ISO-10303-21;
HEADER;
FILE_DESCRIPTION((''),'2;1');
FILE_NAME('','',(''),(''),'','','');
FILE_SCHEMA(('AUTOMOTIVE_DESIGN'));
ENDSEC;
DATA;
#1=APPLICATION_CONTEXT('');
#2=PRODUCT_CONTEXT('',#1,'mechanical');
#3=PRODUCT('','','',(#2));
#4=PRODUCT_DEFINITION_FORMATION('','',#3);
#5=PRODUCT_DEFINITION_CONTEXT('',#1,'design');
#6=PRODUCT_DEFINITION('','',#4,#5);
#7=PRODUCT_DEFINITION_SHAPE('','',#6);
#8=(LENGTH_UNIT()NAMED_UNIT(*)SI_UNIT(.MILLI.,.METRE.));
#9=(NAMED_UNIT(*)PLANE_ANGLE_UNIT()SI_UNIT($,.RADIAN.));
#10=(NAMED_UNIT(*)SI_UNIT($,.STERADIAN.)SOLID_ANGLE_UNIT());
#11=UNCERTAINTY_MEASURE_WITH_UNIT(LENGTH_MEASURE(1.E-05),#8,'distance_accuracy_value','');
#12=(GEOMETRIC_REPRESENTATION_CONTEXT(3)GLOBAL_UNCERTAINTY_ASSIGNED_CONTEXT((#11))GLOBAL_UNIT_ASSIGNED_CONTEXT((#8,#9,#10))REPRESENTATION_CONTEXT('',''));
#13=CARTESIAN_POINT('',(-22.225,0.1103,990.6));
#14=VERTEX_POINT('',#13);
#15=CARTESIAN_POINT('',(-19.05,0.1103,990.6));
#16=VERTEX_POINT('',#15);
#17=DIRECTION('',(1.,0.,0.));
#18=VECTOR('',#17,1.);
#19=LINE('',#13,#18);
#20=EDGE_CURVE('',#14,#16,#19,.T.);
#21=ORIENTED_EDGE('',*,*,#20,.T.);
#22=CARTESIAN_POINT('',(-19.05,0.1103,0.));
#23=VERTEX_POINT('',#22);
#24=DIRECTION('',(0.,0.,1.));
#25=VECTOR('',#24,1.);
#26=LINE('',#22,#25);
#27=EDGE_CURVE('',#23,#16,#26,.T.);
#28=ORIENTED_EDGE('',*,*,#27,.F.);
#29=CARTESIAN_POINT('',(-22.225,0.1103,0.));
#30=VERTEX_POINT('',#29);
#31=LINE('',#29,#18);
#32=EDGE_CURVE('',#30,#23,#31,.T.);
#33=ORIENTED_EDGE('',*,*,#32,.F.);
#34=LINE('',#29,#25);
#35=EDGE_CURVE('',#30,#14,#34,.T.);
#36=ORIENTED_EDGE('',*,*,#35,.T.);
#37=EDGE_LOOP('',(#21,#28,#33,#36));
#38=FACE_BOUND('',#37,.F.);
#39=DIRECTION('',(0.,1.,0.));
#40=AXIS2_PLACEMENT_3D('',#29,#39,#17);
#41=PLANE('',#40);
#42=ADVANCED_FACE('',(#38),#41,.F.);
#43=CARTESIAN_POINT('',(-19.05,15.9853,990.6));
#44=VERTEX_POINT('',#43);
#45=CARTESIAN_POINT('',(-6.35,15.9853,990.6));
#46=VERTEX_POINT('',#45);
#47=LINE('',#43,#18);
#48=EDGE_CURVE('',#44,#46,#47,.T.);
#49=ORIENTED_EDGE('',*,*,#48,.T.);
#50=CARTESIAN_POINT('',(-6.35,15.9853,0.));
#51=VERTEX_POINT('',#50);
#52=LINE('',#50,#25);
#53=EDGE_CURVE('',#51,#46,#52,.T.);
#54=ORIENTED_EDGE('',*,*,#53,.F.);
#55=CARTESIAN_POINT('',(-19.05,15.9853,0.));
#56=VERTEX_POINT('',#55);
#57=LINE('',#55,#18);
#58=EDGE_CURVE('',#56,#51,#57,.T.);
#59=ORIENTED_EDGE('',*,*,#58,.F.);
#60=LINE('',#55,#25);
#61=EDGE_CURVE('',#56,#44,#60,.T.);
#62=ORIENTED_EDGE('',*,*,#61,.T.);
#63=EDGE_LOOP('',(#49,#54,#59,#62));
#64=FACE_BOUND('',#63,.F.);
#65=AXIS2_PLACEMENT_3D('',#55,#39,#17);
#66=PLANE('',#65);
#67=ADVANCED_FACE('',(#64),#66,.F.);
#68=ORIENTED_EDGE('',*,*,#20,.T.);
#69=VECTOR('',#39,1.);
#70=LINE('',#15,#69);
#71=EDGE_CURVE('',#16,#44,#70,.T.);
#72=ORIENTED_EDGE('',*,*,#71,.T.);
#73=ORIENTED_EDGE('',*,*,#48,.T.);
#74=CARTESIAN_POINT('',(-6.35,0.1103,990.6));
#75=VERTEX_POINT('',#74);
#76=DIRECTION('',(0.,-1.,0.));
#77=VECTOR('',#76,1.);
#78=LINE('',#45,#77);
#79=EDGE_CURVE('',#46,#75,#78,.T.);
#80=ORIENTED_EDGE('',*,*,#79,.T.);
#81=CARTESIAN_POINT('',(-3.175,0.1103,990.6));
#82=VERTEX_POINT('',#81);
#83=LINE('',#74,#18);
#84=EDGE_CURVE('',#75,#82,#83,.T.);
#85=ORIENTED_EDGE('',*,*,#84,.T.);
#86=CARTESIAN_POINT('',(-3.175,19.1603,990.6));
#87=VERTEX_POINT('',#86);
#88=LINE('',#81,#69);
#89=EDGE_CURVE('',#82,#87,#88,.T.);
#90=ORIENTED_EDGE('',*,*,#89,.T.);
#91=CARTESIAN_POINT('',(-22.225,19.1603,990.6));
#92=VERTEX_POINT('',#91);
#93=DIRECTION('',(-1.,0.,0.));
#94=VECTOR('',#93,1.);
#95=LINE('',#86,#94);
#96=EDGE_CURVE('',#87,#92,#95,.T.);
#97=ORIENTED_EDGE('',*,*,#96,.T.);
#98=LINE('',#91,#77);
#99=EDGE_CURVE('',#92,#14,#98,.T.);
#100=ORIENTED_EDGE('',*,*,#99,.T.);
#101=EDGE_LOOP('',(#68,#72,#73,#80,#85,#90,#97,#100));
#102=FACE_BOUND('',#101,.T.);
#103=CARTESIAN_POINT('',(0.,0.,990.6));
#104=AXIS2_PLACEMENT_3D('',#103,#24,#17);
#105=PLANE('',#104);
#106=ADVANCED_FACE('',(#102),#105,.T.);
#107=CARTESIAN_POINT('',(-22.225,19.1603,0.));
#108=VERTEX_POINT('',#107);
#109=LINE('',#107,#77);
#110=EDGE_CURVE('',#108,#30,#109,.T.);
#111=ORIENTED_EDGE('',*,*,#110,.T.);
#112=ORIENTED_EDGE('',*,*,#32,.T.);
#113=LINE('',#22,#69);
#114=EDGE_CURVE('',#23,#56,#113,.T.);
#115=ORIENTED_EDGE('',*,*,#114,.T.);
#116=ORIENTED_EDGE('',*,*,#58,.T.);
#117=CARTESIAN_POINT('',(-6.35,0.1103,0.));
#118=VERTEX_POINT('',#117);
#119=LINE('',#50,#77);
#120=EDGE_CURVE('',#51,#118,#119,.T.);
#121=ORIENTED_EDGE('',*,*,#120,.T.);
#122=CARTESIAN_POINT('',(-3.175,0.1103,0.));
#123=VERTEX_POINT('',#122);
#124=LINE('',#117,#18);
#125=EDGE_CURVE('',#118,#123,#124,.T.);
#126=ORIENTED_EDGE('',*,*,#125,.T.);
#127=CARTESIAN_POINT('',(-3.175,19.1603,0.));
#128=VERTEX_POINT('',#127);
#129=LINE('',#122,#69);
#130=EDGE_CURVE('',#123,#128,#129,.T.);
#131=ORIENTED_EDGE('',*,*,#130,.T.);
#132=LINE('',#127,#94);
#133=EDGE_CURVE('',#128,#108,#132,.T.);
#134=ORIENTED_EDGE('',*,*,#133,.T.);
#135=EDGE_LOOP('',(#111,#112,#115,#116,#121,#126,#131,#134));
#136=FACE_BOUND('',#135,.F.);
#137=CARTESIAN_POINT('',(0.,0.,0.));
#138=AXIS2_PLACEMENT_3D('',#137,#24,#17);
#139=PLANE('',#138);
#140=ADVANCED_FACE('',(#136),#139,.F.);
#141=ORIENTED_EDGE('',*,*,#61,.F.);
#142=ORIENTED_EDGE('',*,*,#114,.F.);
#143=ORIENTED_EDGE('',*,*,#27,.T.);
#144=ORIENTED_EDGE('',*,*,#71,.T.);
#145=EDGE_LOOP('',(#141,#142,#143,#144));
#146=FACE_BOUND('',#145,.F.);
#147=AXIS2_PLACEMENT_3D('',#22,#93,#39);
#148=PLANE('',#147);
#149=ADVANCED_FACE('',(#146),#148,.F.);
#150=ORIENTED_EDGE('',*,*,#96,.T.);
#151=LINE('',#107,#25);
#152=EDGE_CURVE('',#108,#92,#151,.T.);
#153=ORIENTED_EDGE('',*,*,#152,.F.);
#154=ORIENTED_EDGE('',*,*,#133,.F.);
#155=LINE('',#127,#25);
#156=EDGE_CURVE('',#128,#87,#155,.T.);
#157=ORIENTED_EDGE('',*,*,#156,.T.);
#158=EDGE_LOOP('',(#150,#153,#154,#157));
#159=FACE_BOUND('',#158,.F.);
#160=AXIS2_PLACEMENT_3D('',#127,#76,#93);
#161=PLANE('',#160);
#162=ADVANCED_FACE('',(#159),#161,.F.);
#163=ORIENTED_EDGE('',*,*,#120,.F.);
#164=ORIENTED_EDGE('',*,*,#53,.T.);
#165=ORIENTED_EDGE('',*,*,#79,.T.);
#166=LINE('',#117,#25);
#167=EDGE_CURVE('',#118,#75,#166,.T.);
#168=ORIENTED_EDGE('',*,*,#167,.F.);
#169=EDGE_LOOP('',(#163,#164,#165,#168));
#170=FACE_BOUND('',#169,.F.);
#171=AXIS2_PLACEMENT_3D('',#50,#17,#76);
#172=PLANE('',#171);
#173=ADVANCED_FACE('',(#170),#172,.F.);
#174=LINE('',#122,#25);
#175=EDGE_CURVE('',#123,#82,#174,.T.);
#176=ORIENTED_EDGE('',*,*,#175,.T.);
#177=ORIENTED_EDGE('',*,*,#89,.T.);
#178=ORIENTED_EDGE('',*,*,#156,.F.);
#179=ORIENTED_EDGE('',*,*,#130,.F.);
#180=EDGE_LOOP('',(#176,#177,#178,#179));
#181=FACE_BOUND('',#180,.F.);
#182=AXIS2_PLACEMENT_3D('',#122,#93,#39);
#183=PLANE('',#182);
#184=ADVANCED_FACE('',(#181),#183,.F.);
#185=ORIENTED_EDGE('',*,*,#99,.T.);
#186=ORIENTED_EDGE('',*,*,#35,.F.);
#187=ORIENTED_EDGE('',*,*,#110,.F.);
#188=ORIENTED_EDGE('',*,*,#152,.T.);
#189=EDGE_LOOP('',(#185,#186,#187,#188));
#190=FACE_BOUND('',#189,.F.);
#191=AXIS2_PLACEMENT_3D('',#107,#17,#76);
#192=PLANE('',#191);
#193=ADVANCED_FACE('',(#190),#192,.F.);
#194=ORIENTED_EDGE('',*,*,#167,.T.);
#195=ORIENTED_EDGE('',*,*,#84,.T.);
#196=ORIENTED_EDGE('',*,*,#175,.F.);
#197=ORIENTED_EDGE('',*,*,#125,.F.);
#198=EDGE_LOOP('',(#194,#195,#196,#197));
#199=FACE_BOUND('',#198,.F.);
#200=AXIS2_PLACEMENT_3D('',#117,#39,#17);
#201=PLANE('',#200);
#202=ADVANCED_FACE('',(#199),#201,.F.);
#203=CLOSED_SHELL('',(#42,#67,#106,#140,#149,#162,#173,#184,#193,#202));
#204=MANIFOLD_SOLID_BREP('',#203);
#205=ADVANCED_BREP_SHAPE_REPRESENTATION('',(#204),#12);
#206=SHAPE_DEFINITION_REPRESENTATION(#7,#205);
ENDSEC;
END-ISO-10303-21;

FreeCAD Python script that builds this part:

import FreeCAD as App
import Part
import Sketcher
from FreeCAD import Vector
Q = App.Units.Quantity

doc = App.newDocument("Part")
body = doc.addObject("PartDesign::Body", "Body")

sketch1 = body.newObject("Sketcher::SketchObject", "Sketch")
sketch1.AttachmentSupport = (doc.getObject("XY_Plane"), [""])
sketch1.MapMode = "FlatFace"
sketch1.addGeometry([
    Part.LineSegment(Vector(-3.2, 19.2, 0), Vector(-22.2, 19.2, 0)),
    Part.LineSegment(Vector(-22.2, 19.2, 0), Vector(-22.2, 0.1, 0)),
    Part.LineSegment(Vector(-22.2, 0.1, 0), Vector(-19.1, 0.1, 0)),
    Part.LineSegment(Vector(-19.1, 0.1, 0), Vector(-19.1, 16, 0)),
    Part.LineSegment(Vector(-19.1, 16, 0), Vector(-6.3, 16, 0)),
    Part.LineSegment(Vector(-6.3, 16, 0), Vector(-6.3, 0.1, 0)),
    Part.LineSegment(Vector(-6.3, 0.1, 0), Vector(-3.2, 0.1, 0)),
    Part.LineSegment(Vector(-3.2, 0.1, 0), Vector(-3.2, 19.2, 0)),
], False)
sketch1.addConstraint([
    Sketcher.Constraint("Coincident", 0, 2, 1, 1),
    Sketcher.Constraint("Coincident", 1, 2, 2, 1),
    Sketcher.Constraint("Coincident", 2, 2, 3, 1),
    Sketcher.Constraint("Coincident", 3, 2, 4, 1),
    Sketcher.Constraint("Coincident", 4, 2, 5, 1),
    Sketcher.Constraint("Coincident", 5, 2, 6, 1),
    Sketcher.Constraint("Coincident", 6, 2, 7, 1),
    Sketcher.Constraint("Coincident", 7, 2, 0, 1),
    Sketcher.Constraint("Horizontal", 0),
    Sketcher.Constraint("Vertical", 1),
    Sketcher.Constraint("Horizontal", 2),
    Sketcher.Constraint("Vertical", 3),
    Sketcher.Constraint("Horizontal", 4),
    Sketcher.Constraint("Vertical", 5),
    Sketcher.Constraint("Horizontal", 6),
    Sketcher.Constraint("Vertical", 7),
    Sketcher.Constraint("Horizontal", 2, 2, 5, 2),
    Sketcher.Constraint("Equal", 2, 6),
    Sketcher.Constraint("Equal", 0, 1),
    Sketcher.Constraint("DistanceX", 0, 2, 0, 1, Q("0.75 in")),
    Sketcher.Constraint("DistanceX", 2, 1, 2, 2, Q("0.125 in")),
    Sketcher.Constraint("DistanceX", 2, 2, -1, 1, Q("0.75 in")),
    Sketcher.Constraint("DistanceY", 3, 2, 0, 2, Q("0.125 in")),
    Sketcher.Constraint("DistanceY", -1, 1, 0, 2, Q("19.1603 mm")),
])
pad1 = body.newObject("PartDesign::Pad", "Pad")
pad1.Profile = sketch1
pad1.Length = Q("39 in")

doc.recompute()
